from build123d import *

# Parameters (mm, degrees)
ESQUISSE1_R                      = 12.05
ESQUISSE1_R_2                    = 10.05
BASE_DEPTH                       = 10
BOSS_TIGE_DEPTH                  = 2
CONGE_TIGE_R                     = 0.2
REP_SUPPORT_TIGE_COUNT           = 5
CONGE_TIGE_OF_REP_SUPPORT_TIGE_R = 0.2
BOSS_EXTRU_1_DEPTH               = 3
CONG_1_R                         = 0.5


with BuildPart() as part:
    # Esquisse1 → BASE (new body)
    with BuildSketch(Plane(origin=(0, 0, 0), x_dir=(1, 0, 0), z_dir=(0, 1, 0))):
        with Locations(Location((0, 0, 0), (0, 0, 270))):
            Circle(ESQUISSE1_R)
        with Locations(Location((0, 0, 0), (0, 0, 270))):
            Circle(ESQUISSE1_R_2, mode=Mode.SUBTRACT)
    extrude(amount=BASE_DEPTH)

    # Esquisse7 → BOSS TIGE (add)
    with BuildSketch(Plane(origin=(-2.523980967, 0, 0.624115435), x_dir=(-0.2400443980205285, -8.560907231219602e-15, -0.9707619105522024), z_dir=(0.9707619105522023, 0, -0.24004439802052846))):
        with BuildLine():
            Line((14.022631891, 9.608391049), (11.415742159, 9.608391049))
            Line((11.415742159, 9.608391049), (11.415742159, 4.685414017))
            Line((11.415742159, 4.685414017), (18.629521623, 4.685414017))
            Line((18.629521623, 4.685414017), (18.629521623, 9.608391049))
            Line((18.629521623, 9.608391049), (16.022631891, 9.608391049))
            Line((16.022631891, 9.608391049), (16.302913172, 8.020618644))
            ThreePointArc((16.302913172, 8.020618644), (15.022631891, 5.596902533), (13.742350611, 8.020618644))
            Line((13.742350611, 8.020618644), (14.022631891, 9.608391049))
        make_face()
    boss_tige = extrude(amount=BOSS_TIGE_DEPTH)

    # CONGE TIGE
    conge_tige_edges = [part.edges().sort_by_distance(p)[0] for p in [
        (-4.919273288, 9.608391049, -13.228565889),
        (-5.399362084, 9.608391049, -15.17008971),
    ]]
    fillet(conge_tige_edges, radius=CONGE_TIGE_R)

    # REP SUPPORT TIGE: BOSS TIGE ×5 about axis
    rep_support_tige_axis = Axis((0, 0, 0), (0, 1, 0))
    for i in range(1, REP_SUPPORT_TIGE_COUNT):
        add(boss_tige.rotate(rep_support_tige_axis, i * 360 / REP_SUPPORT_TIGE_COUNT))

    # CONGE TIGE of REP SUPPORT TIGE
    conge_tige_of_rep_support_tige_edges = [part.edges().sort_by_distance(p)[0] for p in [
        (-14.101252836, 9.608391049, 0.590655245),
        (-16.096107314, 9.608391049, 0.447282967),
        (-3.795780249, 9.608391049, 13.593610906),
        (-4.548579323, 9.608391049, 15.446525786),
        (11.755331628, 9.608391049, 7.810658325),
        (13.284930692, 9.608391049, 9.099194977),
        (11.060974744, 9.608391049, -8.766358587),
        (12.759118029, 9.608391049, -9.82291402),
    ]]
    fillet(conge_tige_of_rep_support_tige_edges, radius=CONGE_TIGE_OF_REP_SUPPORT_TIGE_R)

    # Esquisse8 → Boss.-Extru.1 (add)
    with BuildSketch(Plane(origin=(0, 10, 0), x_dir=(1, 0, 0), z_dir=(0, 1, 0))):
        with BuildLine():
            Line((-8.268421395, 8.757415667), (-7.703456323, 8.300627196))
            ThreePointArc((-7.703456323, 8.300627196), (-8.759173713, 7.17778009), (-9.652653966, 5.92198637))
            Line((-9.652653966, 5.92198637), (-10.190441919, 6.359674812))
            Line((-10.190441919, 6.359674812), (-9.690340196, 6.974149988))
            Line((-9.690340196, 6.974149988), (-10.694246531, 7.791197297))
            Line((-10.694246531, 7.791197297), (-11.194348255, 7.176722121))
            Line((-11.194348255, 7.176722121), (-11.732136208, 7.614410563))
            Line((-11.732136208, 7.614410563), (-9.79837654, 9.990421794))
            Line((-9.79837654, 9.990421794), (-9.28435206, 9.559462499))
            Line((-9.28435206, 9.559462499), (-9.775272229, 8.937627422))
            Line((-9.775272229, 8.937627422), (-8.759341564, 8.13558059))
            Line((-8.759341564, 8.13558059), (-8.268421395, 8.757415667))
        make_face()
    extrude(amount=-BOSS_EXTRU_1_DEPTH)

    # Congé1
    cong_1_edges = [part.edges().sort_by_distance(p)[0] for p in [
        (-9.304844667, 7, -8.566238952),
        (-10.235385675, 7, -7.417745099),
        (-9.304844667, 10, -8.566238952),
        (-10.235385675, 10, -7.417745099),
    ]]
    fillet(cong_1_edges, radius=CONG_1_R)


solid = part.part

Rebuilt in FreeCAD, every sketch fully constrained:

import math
import FreeCAD as App
import Part
import Sketcher

V = App.Vector


def edges_at(feature, points):
    """Names of the edges that pass closest to the given points."""
    edges = feature.Shape.Edges
    near = lambda p: min(range(len(edges)), key=lambda i: edges[i].distToShape(Part.Vertex(*p))[0])
    return sorted({f"Edge{near(p) + 1}" for p in points})

doc = App.newDocument("Part")
body = doc.addObject("PartDesign::Body", "Body")

# Sketch on XZ plane
sketch1 = body.newObject("Sketcher::SketchObject", "Sketch")
sketch1.AttachmentSupport = (doc.getObject("XZ_Plane"), [""])
sketch1.MapMode = "FlatFace"
sketch1.addGeometry([
    Part.Circle(V(0, 0, 0), V(0, 0, 1), 12),
    Part.Circle(V(0, 0, 0), V(0, 0, 1), 10),
], False)
sketch1.addConstraint([
    Sketcher.Constraint("Coincident", 0, 3, -1, 1),
    Sketcher.Constraint("Coincident", 1, 3, -1, 1),
    Sketcher.Constraint("Diameter", 0, 24.1),
    Sketcher.Constraint("Diameter", 1, 20.1),
])
pad1 = body.newObject("PartDesign::Pad", "Pad")
pad1.Profile = sketch1
pad1.Length = 10
pad1.Reversed = True

# Sketch on an angled plane
sketch2 = body.newObject("Sketcher::SketchObject", "Sketch001")
sketch2.Placement = App.Placement(V(-2.523981, 0, 0.624115), App.Rotation(V(-0.240044398, 0, -0.970761911), V(0, 1.000000001, 0), V(0.970761911, 0, -0.240044398), "ZXY"))
sketch2.addGeometry([
    Part.LineSegment(V(14, 9.6, 0), V(11.4, 9.6, 0)),  # 0
    Part.LineSegment(V(11.4, 9.6, 0), V(11.4, 4.7, 0)),  # 1
    Part.LineSegment(V(11.4, 4.7, 0), V(18.6, 4.7, 0)),  # 2
    Part.LineSegment(V(18.6, 4.7, 0), V(18.6, 9.6, 0)),  # 3
    Part.LineSegment(V(18.6, 9.6, 0), V(16, 9.6, 0)),  # 4
    Part.LineSegment(V(16, 9.6, 0), V(16.3, 8, 0)),  # 5
    Part.ArcOfCircle(Part.Circle(V(15, 7.1, 0), V(0, 0, 1), 1.6), math.radians(146), math.radians(394)),  # 6
    Part.LineSegment(V(13.7, 8, 0), V(14, 9.6, 0)),  # 7
], False)
sketch2.addConstraint([
    Sketcher.Constraint("Coincident", 0, 2, 1, 1),
    Sketcher.Constraint("Coincident", 1, 2, 2, 1),
    Sketcher.Constraint("Coincident", 2, 2, 3, 1),
    Sketcher.Constraint("Coincident", 3, 2, 4, 1),
    Sketcher.Constraint("Coincident", 4, 2, 5, 1),
    Sketcher.Constraint("Coincident", 5, 2, 6, 2),
    Sketcher.Constraint("Coincident", 6, 1, 7, 1),
    Sketcher.Constraint("Coincident", 7, 2, 0, 1),
    Sketcher.Constraint("Horizontal", 0),
    Sketcher.Constraint("Vertical", 1),
    Sketcher.Constraint("Horizontal", 2),
    Sketcher.Constraint("Vertical", 3),
    Sketcher.Constraint("Horizontal", 4),
    Sketcher.Constraint("Horizontal", 0, 2, 3, 2),
    Sketcher.Constraint("Horizontal", 5, 2, 6, 1),
    Sketcher.Constraint("Equal", 0, 4),
    Sketcher.Constraint("Equal", 5, 7),
    Sketcher.Constraint("Radius", 6, 1.55),
    Sketcher.Constraint("DistanceX", 6, 3, 4, 2, 1.0),
    Sketcher.Constraint("DistanceX", 0, 2, 0, 1, 2.60689),
    Sketcher.Constraint("Distance", 5, 1.612321),
    Sketcher.Constraint("DistanceY", 1, 2, 1, 1, 4.922977),
    Sketcher.Constraint("DistanceX", -1, 1, 6, 3, 15.022632),
    Sketcher.Constraint("DistanceY", -1, 1, 0, 2, 9.608391),
    Sketcher.Constraint("DistanceY", -1, 1, 5, 2, 8.020619),
])
pad2 = body.newObject("PartDesign::Pad", "Pad001")
pad2.Profile = sketch2
pad2.Length = 2
doc.recompute()

fillet = body.newObject("PartDesign::Fillet", "Fillet")
fillet.Base = (pad2, edges_at(pad2, [(-4.919, 9.608, -13.229), (-5.399, 9.608, -15.17)]))
fillet.Radius = 0.2
doc.recompute()

polarpattern = body.newObject("PartDesign::PolarPattern", "PolarPattern")
polarpattern.Originals = [pad2]
polarpattern.Axis = (doc.getObject("Y_Axis"), [""])
polarpattern.Angle = 360
polarpattern.Occurrences = 5
body.Tip = polarpattern
doc.recompute()

fillet2 = body.newObject("PartDesign::Fillet", "Fillet001")
fillet2.Base = (polarpattern, edges_at(polarpattern, [
    (-14.101, 9.608, 0.591),
    (-16.096, 9.608, 0.447),
    (-3.796, 9.608, 13.594),
    (-4.549, 9.608, 15.447),
    (11.755, 9.608, 7.811),
    (13.285, 9.608, 9.099),
    (11.061, 9.608, -8.766),
    (12.759, 9.608, -9.823),
]))
fillet2.Radius = 0.2

# Sketch on XZ plane
sketch3 = body.newObject("Sketcher::SketchObject", "Sketch002")
sketch3.AttachmentSupport = (doc.getObject("XZ_Plane"), [""])
sketch3.MapMode = "FlatFace"
sketch3.AttachmentOffset = App.Placement(V(0, 0, -10), App.Rotation())
sketch3.addGeometry([
    Part.LineSegment(V(-7.7, -8.3, 0), V(-8.3, -8.8, 0)),  # 0
    Part.LineSegment(V(-8.3, -8.8, 0), V(-8.8, -8.1, 0)),  # 1
    Part.LineSegment(V(-8.8, -8.1, 0), V(-9.8, -8.9, 0)),  # 2
    Part.LineSegment(V(-9.8, -8.9, 0), V(-9.3, -9.6, 0)),  # 3
    Part.LineSegment(V(-9.3, -9.6, 0), V(-9.8, -10, 0)),  # 4
    Part.LineSegment(V(-9.8, -10, 0), V(-11.7, -7.6, 0)),  # 5
    Part.LineSegment(V(-11.7, -7.6, 0), V(-11.2, -7.2, 0)),  # 6
    Part.LineSegment(V(-11.2, -7.2, 0), V(-10.7, -7.8, 0)),  # 7
    Part.LineSegment(V(-10.7, -7.8, 0), V(-9.7, -7, 0)),  # 8
    Part.LineSegment(V(-9.7, -7, 0), V(-10.2, -6.4, 0)),  # 9
    Part.LineSegment(V(-10.2, -6.4, 0), V(-9.7, -5.9, 0)),  # 10
    Part.ArcOfCircle(Part.Circle(V(0, 0, 0), V(0, 0, 1), 11.3), math.radians(-148.47), math.radians(-132.86)),  # 11
], False)
sketch3.addConstraint([
    Sketcher.Constraint("Coincident", 0, 2, 1, 1),
    Sketcher.Constraint("Coincident", 1, 2, 2, 1),
    Sketcher.Constraint("Coincident", 2, 2, 3, 1),
    Sketcher.Constraint("Coincident", 3, 2, 4, 1),
    Sketcher.Constraint("Coincident", 4, 2, 5, 1),
    Sketcher.Constraint("Coincident", 5, 2, 6, 1),
    Sketcher.Constraint("Coincident", 6, 2, 7, 1),
    Sketcher.Constraint("Coincident", 7, 2, 8, 1),
    Sketcher.Constraint("Coincident", 8, 2, 9, 1),
    Sketcher.Constraint("Coincident", 9, 2, 10, 1),
    Sketcher.Constraint("Coincident", 10, 2, 11, 1),
    Sketcher.Constraint("Coincident", 11, 2, 0, 1),
    Sketcher.Constraint("Coincident", 11, 3, -1, 1),
    Sketcher.Constraint("Perpendicular", 1, 2),
    Sketcher.Constraint("Perpendicular", 2, 3),
    Sketcher.Constraint("Perpendicular", 5, 6),
    Sketcher.Constraint("Perpendicular", 6, 7),
    Sketcher.Constraint("Perpendicular", 7, 8),
    Sketcher.Constraint("Perpendicular", 8, 9),
    Sketcher.Constraint("Perpendicular", 9, 10),
    Sketcher.Constraint("Equal", 1, 3),
    Sketcher.Constraint("Equal", 3, 7),
    Sketcher.Constraint("Equal", 2, 8),
    Sketcher.Constraint("Equal", 7, 9),
    Sketcher.Constraint("Equal", 6, 10),
    Sketcher.Constraint("Radius", 11, 11.324471),
    Sketcher.Constraint("DistanceX", 8, 2, 1, 2, 0.930999),
    Sketcher.Constraint("DistanceY", 2, 2, 11, 2, 0.637),
    Sketcher.Constraint("DistanceY", 4, 2, 6, 2, 2.8137),
    Sketcher.Constraint("DistanceX", 6, 2, 7, 2, 0.500102),
    Sketcher.Constraint("Distance", 2, 1.29437),
    Sketcher.Constraint("Distance", 4, 0.670781),
    Sketcher.Constraint("Distance", 5, 3.063471),
    Sketcher.Constraint("Distance", 6, 0.693388),
    Sketcher.Constraint("DistanceX", 0, 2, -1, 1, 8.268421),
    Sketcher.Constraint("DistanceX", 1, 2, -1, 1, 8.759342),
])
pad3 = body.newObject("PartDesign::Pad", "Pad002")
pad3.Profile = sketch3
pad3.Length = 3
doc.recompute()

fillet3 = body.newObject("PartDesign::Fillet", "Fillet002")
fillet3.Base = (pad3, edges_at(pad3, [
    (-9.305, 7, -8.566),
    (-10.235, 7, -7.418),
    (-9.305, 10, -8.566),
    (-10.235, 10, -7.418),
]))
fillet3.Radius = 0.5

doc.recompute()
